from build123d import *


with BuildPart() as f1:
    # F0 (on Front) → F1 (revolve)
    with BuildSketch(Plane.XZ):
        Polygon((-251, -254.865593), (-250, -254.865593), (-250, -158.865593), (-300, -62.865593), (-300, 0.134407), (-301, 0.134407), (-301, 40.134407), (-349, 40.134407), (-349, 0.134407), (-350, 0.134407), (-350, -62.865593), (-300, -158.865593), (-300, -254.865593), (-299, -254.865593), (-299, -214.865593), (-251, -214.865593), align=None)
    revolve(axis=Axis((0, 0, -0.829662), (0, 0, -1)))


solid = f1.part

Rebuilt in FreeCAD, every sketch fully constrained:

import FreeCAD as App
import Part
import Sketcher
from FreeCAD import Vector


def add_polygon(sketch, points):
    """Adds a closed chain of lines whose ends are joined by coincident constraints."""
    first, n = sketch.GeometryCount, len(points)
    for a, b in zip(points, points[1:] + points[:1]):
        sketch.addGeometry(Part.LineSegment(App.Vector(*a, 0), App.Vector(*b, 0)), False)
    for i in range(n):
        sketch.addConstraint(Sketcher.Constraint("Coincident", first + i, 2, first + (i + 1) % n, 1))

doc = App.newDocument("Part")
body = doc.addObject("PartDesign::Body", "Body")

sketch1 = body.newObject("Sketcher::SketchObject", "Sketch")
sketch1.AttachmentSupport = (doc.getObject("XZ_Plane"), [""])
sketch1.MapMode = "FlatFace"
add_polygon(sketch1, [(-251, -254.865593), (-250, -254.865593), (-250, -158.865593), (-300, -62.865593), (-300, 0.134407), (-301, 0.134407), (-301, 40.134407), (-349, 40.134407), (-349, 0.134407), (-350, 0.134407), (-350, -62.865593), (-300, -158.865593), (-300, -254.865593), (-299, -254.865593), (-299, -214.865593), (-251, -214.865593)])
sketch1.addConstraint([
    Sketcher.Constraint("Horizontal", 0),
    Sketcher.Constraint("Vertical", 1),
    Sketcher.Constraint("Vertical", 3),
    Sketcher.Constraint("Horizontal", 4),
    Sketcher.Constraint("Vertical", 5),
    Sketcher.Constraint("Horizontal", 6),
    Sketcher.Constraint("Vertical", 7),
    Sketcher.Constraint("Horizontal", 8),
    Sketcher.Constraint("Vertical", 9),
    Sketcher.Constraint("Vertical", 11),
    Sketcher.Constraint("Horizontal", 12),
    Sketcher.Constraint("Vertical", 13),
    Sketcher.Constraint("Horizontal", 14),
    Sketcher.Constraint("Vertical", 15),
    Sketcher.Constraint("Parallel", 2, 10),
    Sketcher.Constraint("Horizontal", 4, 2, 7, 2),
    Sketcher.Constraint("Horizontal", 2, 2, 9, 2),
    Sketcher.Constraint("Horizontal", 1, 2, 10, 2),
    Sketcher.Constraint("Horizontal", 0, 2, 11, 2),
    Sketcher.Constraint("Vertical", 3, 2, 10, 2),
    Sketcher.Constraint("Equal", 0, 4),
    Sketcher.Constraint("Equal", 4, 8),
    Sketcher.Constraint("Equal", 8, 12),
    Sketcher.Constraint("Equal", 7, 13),
    Sketcher.Constraint("DistanceX", 0, 1, 0, 2, 1.0),
    Sketcher.Constraint("DistanceX", 6, 2, 6, 1, 48.0),
    Sketcher.Constraint("DistanceY", 1, 1, 1, 2, 96.0),
    Sketcher.Constraint("DistanceY", 3, 1, 3, 2, 63.0),
    Sketcher.Constraint("DistanceY", 5, 1, 5, 2, 40.0),
    Sketcher.Constraint("DistanceX", 0, 2, -1, 1, 250.0),
    Sketcher.Constraint("DistanceY", 1, 2, 2, 2, 96.0),
    Sketcher.Constraint("DistanceY", 0, 2, -1, 1, 254.865593),
])
revolution = body.newObject("PartDesign::Revolution", "Revolution")
revolution.Profile = sketch1
revolution.ReferenceAxis = (sketch1, ["V_Axis"])
revolution.Angle = 360

doc.recompute()
